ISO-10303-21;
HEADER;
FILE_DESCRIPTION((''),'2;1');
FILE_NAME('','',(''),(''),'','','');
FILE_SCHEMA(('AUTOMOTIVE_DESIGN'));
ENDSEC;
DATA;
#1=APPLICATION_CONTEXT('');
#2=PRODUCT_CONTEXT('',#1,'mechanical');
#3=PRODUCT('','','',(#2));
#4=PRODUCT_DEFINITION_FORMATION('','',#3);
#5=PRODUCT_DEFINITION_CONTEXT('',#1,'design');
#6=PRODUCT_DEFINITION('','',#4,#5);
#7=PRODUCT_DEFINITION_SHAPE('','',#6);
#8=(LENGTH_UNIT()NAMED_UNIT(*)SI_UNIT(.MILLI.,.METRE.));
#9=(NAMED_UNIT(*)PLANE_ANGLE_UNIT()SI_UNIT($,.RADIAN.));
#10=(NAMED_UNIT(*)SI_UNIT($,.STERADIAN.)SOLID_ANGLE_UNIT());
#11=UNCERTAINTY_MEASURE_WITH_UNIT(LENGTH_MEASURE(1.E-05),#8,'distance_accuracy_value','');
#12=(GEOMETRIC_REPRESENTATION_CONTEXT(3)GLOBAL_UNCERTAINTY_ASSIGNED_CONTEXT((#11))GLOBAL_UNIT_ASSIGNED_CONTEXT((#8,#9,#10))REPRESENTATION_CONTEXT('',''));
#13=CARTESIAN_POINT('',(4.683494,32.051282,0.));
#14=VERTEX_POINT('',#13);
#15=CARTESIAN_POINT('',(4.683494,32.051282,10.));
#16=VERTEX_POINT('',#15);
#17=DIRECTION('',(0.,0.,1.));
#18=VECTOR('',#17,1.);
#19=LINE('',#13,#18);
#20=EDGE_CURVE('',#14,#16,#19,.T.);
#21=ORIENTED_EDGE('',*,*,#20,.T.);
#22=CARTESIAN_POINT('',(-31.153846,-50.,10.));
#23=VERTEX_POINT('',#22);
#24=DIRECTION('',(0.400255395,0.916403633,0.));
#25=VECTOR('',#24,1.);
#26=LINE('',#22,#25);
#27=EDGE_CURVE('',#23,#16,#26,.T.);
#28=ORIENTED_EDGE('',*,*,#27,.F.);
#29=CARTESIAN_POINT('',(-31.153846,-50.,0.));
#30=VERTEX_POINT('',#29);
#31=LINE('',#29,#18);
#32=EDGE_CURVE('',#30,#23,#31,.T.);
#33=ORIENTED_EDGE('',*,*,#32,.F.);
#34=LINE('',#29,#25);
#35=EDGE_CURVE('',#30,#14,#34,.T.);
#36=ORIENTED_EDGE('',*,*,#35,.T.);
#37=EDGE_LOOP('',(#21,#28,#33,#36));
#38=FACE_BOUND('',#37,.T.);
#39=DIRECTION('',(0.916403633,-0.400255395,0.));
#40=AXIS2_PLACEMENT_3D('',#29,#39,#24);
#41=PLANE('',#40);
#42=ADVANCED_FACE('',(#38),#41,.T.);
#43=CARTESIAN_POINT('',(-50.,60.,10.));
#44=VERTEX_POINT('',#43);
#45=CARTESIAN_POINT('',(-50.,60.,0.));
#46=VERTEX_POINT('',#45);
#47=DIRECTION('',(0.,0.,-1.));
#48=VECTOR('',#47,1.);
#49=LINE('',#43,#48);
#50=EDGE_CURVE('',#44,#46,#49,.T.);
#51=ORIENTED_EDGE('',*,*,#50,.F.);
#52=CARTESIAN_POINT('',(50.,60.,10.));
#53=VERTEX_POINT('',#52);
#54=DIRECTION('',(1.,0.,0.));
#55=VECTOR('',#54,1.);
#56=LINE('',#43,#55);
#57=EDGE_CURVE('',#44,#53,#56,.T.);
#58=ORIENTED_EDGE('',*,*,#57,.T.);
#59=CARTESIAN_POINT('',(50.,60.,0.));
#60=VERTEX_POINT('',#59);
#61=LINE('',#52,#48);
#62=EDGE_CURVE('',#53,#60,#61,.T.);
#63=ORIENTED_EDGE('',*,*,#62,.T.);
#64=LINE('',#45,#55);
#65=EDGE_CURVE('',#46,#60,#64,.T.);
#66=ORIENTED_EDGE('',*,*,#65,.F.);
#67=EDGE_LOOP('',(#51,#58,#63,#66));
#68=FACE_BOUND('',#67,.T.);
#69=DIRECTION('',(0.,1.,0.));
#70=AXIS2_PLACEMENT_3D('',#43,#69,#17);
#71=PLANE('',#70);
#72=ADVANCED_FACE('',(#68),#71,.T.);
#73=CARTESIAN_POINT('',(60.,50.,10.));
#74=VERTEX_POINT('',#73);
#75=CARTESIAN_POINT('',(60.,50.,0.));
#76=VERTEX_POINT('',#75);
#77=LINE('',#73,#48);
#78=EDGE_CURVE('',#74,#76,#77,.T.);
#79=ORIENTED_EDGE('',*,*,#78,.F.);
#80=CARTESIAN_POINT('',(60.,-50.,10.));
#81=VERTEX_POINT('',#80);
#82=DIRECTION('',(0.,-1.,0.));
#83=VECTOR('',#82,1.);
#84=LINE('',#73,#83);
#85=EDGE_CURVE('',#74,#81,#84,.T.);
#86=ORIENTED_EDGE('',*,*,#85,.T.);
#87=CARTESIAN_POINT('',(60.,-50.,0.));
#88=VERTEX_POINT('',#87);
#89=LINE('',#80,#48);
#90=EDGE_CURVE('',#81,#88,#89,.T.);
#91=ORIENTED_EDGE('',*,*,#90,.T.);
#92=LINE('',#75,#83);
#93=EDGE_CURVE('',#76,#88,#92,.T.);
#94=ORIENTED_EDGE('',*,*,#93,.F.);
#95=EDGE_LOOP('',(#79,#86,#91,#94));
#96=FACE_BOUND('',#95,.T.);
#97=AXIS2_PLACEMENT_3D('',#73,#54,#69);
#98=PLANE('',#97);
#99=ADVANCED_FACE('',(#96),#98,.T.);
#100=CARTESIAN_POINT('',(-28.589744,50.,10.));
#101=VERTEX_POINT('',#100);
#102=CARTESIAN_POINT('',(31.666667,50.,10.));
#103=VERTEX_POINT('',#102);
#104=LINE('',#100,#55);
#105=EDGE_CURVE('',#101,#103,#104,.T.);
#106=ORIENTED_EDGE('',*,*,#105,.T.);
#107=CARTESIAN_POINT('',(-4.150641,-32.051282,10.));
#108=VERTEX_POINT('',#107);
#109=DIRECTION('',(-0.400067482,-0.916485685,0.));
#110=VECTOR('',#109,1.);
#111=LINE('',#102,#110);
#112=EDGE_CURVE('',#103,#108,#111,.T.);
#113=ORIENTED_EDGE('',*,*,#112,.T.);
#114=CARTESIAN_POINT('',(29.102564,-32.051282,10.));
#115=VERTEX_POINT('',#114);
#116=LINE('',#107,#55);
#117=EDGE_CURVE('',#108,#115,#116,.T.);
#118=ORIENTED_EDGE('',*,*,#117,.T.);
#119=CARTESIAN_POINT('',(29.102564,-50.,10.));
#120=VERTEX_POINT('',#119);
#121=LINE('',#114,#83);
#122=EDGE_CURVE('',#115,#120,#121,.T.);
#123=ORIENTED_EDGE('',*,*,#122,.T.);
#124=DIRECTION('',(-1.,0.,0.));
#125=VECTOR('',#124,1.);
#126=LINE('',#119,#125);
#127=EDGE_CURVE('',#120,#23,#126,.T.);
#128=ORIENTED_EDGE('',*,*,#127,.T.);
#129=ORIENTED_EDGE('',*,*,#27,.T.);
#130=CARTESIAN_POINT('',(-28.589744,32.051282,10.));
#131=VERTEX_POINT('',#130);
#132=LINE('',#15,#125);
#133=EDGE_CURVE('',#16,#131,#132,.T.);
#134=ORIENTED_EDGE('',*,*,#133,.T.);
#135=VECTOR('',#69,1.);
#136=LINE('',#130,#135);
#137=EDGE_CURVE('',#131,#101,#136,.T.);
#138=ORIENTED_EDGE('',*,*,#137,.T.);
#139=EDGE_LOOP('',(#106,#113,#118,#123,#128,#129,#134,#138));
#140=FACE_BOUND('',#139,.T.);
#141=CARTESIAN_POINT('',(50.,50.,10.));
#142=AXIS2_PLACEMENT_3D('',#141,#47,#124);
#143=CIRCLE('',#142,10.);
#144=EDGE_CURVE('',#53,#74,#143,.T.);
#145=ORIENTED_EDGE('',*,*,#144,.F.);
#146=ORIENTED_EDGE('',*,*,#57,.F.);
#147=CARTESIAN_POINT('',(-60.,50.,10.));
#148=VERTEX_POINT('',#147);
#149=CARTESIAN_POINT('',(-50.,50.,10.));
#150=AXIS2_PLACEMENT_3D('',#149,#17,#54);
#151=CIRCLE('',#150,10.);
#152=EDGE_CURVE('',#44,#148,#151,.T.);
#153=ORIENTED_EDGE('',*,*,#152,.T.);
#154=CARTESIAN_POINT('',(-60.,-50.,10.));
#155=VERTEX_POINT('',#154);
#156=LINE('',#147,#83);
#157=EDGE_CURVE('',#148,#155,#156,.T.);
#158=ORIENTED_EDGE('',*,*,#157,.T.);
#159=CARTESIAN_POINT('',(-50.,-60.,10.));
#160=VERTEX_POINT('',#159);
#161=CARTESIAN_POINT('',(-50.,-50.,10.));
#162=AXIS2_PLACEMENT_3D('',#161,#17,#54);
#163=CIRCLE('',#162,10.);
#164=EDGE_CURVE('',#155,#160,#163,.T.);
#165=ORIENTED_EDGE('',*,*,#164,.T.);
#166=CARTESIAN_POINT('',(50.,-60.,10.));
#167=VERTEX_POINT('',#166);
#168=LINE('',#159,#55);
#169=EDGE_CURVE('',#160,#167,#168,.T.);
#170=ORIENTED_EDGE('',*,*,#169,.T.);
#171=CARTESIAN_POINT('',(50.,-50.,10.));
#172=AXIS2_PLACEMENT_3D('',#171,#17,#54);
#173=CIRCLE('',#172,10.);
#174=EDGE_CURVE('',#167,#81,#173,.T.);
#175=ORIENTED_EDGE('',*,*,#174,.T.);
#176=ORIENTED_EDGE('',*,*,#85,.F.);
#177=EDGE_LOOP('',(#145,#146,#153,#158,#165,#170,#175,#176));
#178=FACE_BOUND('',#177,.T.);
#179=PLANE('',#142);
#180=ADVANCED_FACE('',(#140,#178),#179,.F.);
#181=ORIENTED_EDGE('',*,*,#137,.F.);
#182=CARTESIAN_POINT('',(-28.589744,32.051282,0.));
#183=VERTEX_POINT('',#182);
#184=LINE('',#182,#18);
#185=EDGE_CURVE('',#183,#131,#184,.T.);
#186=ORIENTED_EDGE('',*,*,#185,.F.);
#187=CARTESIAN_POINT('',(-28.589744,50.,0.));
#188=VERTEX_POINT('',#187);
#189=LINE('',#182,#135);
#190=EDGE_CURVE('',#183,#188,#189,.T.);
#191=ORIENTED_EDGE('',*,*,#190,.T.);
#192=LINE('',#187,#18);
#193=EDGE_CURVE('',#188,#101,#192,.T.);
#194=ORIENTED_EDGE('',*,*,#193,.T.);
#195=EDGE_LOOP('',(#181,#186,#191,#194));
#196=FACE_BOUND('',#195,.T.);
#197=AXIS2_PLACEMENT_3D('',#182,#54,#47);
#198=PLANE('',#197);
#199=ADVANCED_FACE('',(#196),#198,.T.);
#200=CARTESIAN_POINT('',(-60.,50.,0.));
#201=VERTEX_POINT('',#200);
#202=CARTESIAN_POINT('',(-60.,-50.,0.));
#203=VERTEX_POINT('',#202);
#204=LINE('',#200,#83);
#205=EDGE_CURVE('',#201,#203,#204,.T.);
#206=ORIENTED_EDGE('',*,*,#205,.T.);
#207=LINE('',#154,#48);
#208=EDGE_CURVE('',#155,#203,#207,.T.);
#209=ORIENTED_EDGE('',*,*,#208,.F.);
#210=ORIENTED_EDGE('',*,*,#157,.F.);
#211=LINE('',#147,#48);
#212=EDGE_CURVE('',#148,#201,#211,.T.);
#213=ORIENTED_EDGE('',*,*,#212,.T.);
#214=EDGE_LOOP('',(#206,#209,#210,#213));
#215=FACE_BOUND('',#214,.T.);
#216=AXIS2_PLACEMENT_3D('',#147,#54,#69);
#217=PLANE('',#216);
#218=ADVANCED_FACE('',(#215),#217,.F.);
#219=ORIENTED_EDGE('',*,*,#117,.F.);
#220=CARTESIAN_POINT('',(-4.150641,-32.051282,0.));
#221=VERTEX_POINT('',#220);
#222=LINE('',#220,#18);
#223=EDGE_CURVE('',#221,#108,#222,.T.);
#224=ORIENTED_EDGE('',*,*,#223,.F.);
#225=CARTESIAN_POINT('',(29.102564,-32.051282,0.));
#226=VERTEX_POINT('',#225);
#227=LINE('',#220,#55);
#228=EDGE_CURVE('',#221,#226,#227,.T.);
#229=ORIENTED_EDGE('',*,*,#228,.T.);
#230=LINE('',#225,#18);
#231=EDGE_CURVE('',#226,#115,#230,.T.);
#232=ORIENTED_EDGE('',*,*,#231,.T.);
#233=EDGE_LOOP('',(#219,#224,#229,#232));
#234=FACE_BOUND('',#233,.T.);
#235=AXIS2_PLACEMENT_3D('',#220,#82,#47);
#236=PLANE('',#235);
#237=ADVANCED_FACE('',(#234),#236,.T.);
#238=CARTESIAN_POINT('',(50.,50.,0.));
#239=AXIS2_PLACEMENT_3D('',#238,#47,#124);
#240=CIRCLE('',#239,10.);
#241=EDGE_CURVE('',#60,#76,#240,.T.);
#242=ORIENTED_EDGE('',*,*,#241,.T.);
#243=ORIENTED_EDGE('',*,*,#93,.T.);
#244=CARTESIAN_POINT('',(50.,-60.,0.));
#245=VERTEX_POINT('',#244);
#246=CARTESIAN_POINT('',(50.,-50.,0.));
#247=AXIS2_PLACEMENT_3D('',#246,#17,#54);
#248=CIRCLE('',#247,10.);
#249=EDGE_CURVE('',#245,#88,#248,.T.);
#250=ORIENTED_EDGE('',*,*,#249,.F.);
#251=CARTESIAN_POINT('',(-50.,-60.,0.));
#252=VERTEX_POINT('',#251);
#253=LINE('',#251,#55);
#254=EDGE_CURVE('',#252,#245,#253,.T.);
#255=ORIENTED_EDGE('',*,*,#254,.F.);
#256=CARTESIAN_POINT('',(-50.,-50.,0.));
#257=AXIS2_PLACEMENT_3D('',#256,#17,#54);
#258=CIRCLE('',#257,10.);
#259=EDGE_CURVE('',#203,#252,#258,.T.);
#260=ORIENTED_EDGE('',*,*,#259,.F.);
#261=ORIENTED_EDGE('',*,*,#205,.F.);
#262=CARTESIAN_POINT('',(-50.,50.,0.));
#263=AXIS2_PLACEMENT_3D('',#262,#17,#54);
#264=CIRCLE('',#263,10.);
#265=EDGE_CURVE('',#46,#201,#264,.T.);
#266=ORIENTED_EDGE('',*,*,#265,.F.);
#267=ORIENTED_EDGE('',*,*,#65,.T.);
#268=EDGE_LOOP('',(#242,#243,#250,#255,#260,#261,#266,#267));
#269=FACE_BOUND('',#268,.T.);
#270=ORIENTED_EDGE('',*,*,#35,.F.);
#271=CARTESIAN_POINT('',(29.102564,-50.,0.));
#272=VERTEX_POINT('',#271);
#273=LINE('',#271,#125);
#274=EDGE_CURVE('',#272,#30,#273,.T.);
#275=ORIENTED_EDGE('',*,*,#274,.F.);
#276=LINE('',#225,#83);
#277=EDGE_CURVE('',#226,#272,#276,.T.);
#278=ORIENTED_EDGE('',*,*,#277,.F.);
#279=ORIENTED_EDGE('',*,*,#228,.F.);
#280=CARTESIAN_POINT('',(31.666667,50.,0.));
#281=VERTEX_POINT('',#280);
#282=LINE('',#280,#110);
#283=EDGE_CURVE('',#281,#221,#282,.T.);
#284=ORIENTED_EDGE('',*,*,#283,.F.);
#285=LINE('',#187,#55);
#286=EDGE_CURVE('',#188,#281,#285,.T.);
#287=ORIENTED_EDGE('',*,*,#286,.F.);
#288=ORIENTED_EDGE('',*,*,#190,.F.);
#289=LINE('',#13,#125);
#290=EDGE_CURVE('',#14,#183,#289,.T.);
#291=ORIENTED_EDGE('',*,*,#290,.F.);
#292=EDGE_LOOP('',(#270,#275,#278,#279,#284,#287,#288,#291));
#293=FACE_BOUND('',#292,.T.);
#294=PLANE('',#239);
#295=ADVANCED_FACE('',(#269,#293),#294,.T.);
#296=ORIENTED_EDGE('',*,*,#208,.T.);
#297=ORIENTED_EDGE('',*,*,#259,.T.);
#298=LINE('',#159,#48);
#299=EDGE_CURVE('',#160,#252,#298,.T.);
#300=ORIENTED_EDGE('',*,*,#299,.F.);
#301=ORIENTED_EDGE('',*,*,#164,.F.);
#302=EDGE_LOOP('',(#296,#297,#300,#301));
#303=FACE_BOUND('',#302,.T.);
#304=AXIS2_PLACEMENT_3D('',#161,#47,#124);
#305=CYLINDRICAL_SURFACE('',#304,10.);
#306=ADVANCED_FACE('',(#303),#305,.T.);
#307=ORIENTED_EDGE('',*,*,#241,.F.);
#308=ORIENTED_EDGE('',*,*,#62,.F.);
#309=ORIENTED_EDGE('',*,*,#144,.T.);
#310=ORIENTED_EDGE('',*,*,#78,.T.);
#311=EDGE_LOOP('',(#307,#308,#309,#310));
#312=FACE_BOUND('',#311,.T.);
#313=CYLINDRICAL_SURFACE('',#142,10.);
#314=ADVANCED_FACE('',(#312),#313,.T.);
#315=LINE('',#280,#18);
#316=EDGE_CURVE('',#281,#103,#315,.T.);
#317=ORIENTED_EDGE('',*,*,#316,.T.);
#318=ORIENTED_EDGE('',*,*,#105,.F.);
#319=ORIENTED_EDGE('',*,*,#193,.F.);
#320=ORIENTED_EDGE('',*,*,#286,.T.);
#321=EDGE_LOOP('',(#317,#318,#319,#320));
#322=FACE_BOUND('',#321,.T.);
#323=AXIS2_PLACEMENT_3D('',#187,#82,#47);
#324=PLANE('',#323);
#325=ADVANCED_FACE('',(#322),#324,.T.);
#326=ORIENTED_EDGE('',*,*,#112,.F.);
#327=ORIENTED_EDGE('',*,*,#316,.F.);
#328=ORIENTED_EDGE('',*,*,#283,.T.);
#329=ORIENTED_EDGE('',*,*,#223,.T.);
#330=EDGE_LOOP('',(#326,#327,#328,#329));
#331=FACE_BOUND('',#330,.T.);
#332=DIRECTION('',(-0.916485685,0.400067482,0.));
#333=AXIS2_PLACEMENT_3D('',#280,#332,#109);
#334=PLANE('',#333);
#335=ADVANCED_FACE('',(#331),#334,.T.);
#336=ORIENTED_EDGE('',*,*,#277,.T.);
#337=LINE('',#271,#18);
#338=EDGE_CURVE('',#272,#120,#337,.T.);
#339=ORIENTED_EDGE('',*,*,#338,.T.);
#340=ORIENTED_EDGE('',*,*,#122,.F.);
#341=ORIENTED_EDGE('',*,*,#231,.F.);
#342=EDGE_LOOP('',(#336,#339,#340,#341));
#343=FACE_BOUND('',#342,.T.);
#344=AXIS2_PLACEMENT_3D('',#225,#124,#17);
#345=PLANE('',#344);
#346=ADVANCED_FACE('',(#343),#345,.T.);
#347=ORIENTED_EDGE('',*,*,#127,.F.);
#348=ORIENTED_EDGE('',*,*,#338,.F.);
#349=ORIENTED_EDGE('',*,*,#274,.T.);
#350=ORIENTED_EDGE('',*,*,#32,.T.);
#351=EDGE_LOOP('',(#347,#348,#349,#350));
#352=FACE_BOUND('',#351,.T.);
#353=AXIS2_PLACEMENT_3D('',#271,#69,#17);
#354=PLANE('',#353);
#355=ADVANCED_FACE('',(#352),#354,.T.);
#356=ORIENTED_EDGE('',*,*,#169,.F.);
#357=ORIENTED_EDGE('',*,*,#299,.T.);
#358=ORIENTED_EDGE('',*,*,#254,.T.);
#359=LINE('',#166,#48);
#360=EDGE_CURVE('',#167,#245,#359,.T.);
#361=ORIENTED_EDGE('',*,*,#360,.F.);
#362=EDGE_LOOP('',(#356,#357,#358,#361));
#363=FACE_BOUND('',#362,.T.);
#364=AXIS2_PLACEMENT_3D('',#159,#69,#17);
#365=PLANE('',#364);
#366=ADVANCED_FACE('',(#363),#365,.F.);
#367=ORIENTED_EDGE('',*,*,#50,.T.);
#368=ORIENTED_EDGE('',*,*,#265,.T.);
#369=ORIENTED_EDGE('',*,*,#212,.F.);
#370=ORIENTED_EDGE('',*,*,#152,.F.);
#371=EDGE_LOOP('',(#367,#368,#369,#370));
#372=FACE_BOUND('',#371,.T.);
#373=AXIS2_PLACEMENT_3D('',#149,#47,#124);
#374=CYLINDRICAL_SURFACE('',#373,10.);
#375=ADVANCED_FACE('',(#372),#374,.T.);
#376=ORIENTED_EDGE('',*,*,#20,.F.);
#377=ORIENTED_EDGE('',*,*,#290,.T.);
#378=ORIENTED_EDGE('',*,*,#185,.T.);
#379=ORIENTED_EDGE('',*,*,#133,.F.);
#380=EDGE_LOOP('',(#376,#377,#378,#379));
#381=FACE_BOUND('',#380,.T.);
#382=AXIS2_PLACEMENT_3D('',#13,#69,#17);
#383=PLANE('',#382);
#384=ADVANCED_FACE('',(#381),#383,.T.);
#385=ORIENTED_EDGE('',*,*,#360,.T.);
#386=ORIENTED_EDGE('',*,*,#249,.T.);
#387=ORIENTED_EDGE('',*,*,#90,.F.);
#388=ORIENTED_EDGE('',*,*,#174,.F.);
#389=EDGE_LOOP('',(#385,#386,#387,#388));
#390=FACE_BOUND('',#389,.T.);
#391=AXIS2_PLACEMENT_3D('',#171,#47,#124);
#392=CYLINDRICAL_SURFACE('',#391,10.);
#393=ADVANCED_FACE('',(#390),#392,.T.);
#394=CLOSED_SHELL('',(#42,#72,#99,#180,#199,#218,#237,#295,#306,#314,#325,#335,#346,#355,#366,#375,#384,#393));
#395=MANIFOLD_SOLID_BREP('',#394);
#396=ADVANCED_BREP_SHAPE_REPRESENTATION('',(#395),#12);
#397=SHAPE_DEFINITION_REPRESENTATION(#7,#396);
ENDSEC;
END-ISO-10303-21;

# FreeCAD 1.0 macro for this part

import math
import FreeCAD as App
import Part
import Sketcher

V = App.Vector
Q = App.Units.Quantity


def add_polygon(sketch, points):
    """Adds a closed chain of lines whose ends are joined by coincident constraints."""
    first, n = sketch.GeometryCount, len(points)
    for a, b in zip(points, points[1:] + points[:1]):
        sketch.addGeometry(Part.LineSegment(App.Vector(*a, 0), App.Vector(*b, 0)), False)
    for i in range(n):
        sketch.addConstraint(Sketcher.Constraint("Coincident", first + i, 2, first + (i + 1) % n, 1))

doc = App.newDocument("Part")
body = doc.addObject("PartDesign::Body", "Body")

# Sketch on XY plane
sketch1 = doc.addObject("Sketcher::SketchObject", "Sketch")
body.addObject(sketch1)
sketch1.AttachmentSupport = (doc.XY_Plane, [""])
sketch1.MapMode = "FlatFace"
sketch1.addGeometry([
    Part.LineSegment(V(50, 60, 0), V(-50, 60, 0)),  # 0
    Part.ArcOfCircle(Part.Circle(V(-50, 50, 0), V(0, 0, 1), 10), math.radians(90), math.radians(180)),  # 1
    Part.LineSegment(V(-60, 50, 0), V(-60, -50, 0)),  # 2
    Part.ArcOfCircle(Part.Circle(V(-50, -50, 0), V(0, 0, 1), 10), math.radians(180), math.radians(270)),  # 3
    Part.LineSegment(V(-50, -60, 0), V(50, -60, 0)),  # 4
    Part.ArcOfCircle(Part.Circle(V(50, -50, 0), V(0, 0, 1), 10), math.radians(-90), math.radians(0)),  # 5
    Part.LineSegment(V(60, -50, 0), V(60, 50, 0)),  # 6
    Part.ArcOfCircle(Part.Circle(V(50, 50, 0), V(0, 0, 1), 10), math.radians(0), math.radians(90)),  # 7
], False)
sketch1.addConstraint([
    Sketcher.Constraint("Tangent", 0, 2, 1, 1),
    Sketcher.Constraint("Tangent", 1, 2, 2, 1),
    Sketcher.Constraint("Tangent", 2, 2, 3, 1),
    Sketcher.Constraint("Tangent", 3, 2, 4, 1),
    Sketcher.Constraint("Tangent", 4, 2, 5, 1),
    Sketcher.Constraint("Tangent", 5, 2, 6, 1),
    Sketcher.Constraint("Tangent", 6, 2, 7, 1),
    Sketcher.Constraint("Tangent", 7, 2, 0, 1),
    Sketcher.Constraint("Horizontal", 0),
    Sketcher.Constraint("Vertical", 2),
    Sketcher.Constraint("Horizontal", 4),
    Sketcher.Constraint("Vertical", 6),
    Sketcher.Constraint("Equal", 1, 3),
    Sketcher.Constraint("Equal", 3, 5),
    Sketcher.Constraint("Equal", 5, 7),
    Sketcher.Constraint("Symmetric", 1, 3, 5, 3, -1, 1),
    Sketcher.Constraint("Equal", 4, 2),
    Sketcher.Constraint("Radius", 1, Q("10 mm")),
    Sketcher.Constraint("DistanceX", 0, 2, 0, 1, Q("100 mm")),
])
pad1 = doc.addObject("PartDesign::Pad", "Pad")
body.addObject(pad1)
pad1.Profile = sketch1
pad1.Length = 10

# Sketch on XY plane
sketch2 = doc.addObject("Sketcher::SketchObject", "Sketch001")
body.addObject(sketch2)
sketch2.AttachmentSupport = (doc.XY_Plane, [""])
sketch2.MapMode = "FlatFace"
sketch2.AttachmentOffset = App.Placement(V(0, 0, 10), App.Rotation())
add_polygon(sketch2, [(31.666667, 50), (-28.589744, 50), (-28.589744, 32.051282), (4.683494, 32.051282), (-31.153846, -50), (29.102564, -50), (29.102564, -32.051282), (-4.150641, -32.051282)])  # lines 0-7
sketch2.addConstraint([
    Sketcher.Constraint("Horizontal", 0),
    Sketcher.Constraint("Vertical", 1),
    Sketcher.Constraint("Horizontal", 2),
    Sketcher.Constraint("Horizontal", 4),
    Sketcher.Constraint("Vertical", 5),
    Sketcher.Constraint("Horizontal", 6),
    Sketcher.Constraint("Equal", 0, 4),
    Sketcher.Constraint("Equal", 1, 5),
    Sketcher.Constraint("DistanceY", -1, 1, 0, 2, Q("50 mm")),
    Sketcher.Constraint("DistanceY", 3, 2, -1, 1, Q("50 mm")),
    Sketcher.Constraint("DistanceX", 0, 2, 0, 1, Q("60.25641 mm")),
    Sketcher.Constraint("Distance", 3, Q("89.536182 mm")),
    Sketcher.Constraint("DistanceX", 2, 1, 2, 2, Q("33.273237 mm")),
    Sketcher.Constraint("DistanceX", 6, 2, 6, 1, Q("33.253205 mm")),
    Sketcher.Constraint("DistanceY", 1, 2, 1, 1, Q("17.948718 mm")),
    Sketcher.Constraint("DistanceX", 6, 2, -1, 1, Q("4.150641 mm")),
])
pocket1 = doc.addObject("PartDesign::Pocket", "Pocket")
body.addObject(pocket1)
pocket1.Profile = sketch2
pocket1.Length = 10

doc.recompute()
